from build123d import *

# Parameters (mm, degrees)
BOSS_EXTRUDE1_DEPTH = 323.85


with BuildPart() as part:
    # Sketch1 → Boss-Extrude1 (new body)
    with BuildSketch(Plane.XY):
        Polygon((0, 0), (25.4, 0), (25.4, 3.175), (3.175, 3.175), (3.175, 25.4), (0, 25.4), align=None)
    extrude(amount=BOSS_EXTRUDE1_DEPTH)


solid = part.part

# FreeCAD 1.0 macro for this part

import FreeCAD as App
import Part
import Sketcher
Q = App.Units.Quantity


def add_polygon(sketch, points):
    """Adds a closed chain of lines whose ends are joined by coincident constraints."""
    first, n = sketch.GeometryCount, len(points)
    for a, b in zip(points, points[1:] + points[:1]):
        sketch.addGeometry(Part.LineSegment(App.Vector(*a, 0), App.Vector(*b, 0)), False)
    for i in range(n):
        sketch.addConstraint(Sketcher.Constraint("Coincident", first + i, 2, first + (i + 1) % n, 1))

doc = App.newDocument("Part")
body = doc.addObject("PartDesign::Body", "Body")

# Sketch on XY plane
sketch1 = body.newObject("Sketcher::SketchObject", "Sketch")
sketch1.AttachmentSupport = (doc.getObject("XY_Plane"), [""])
sketch1.MapMode = "FlatFace"
add_polygon(sketch1, [(0, 0), (25.4, 0), (25.4, 3.2), (3.2, 3.2), (3.2, 25.4), (0, 25.4)])  # lines 0-5
sketch1.addConstraint([
    Sketcher.Constraint("Horizontal", 0),
    Sketcher.Constraint("Vertical", 1),
    Sketcher.Constraint("Horizontal", 2),
    Sketcher.Constraint("Vertical", 3),
    Sketcher.Constraint("Horizontal", 4),
    Sketcher.Constraint("Vertical", 5),
    Sketcher.Constraint("Coincident", 5, 2, -1, 1),
    Sketcher.Constraint("Equal", 4, 1),
    Sketcher.Constraint("Equal", 2, 3),
    Sketcher.Constraint("DistanceX", 0, 1, 0, 2, Q("1 in")),
    Sketcher.Constraint("DistanceX", 2, 2, 2, 1, Q("0.875 in")),
])
pad1 = body.newObject("PartDesign::Pad", "Pad")
pad1.Profile = sketch1
pad1.Length = Q("12.75 in")

doc.recompute()
